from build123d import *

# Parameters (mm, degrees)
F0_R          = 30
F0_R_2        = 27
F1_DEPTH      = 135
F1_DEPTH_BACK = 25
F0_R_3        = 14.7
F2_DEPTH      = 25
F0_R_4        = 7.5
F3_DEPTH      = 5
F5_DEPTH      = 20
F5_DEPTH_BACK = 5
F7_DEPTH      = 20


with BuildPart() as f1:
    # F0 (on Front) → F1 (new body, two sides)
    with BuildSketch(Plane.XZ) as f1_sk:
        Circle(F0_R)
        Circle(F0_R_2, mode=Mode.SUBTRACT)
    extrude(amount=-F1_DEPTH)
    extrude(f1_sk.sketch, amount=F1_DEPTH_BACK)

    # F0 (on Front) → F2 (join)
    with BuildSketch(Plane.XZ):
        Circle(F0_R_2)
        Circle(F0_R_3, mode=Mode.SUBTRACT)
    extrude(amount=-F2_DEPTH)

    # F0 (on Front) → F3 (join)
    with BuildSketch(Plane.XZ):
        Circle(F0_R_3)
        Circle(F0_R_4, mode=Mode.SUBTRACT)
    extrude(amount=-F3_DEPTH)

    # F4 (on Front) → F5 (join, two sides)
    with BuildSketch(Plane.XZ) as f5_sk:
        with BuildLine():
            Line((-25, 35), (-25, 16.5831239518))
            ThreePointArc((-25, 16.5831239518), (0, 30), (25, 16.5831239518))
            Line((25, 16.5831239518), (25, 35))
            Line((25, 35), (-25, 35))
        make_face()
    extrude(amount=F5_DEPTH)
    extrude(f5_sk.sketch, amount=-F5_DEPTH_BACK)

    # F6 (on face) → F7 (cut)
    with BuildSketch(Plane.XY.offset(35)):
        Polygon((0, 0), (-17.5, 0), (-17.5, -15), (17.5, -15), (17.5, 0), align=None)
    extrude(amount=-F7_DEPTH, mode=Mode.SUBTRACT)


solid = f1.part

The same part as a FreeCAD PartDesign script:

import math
import FreeCAD as App
import Part
import Sketcher
from FreeCAD import Vector


def add_polygon(sketch, points):
    """Adds a closed chain of lines whose ends are joined by coincident constraints."""
    first, n = sketch.GeometryCount, len(points)
    for a, b in zip(points, points[1:] + points[:1]):
        sketch.addGeometry(Part.LineSegment(App.Vector(*a, 0), App.Vector(*b, 0)), False)
    for i in range(n):
        sketch.addConstraint(Sketcher.Constraint("Coincident", first + i, 2, first + (i + 1) % n, 1))

doc = App.newDocument("Part")
body = doc.addObject("PartDesign::Body", "Body")

sketch1 = body.newObject("Sketcher::SketchObject", "Sketch")
sketch1.AttachmentSupport = (doc.getObject("XZ_Plane"), [""])
sketch1.MapMode = "FlatFace"
sketch1.addGeometry([
    Part.Circle(Vector(0, 0, 0), Vector(0, 0, 1), 30),
    Part.Circle(Vector(0, 0, 0), Vector(0, 0, 1), 27),
], False)
sketch1.addConstraint([
    Sketcher.Constraint("Coincident", 0, 3, -1, 1),
    Sketcher.Constraint("Coincident", 1, 3, -1, 1),
    Sketcher.Constraint("Diameter", 0, 60.0),
    Sketcher.Constraint("Diameter", 1, 54.0),
])
pad1 = body.newObject("PartDesign::Pad", "Pad")
pad1.Profile = sketch1
pad1.Type = "TwoLengths"
pad1.Length = 135
pad1.Length2 = 25
pad1.Reversed = True

sketch2 = body.newObject("Sketcher::SketchObject", "Sketch001")
sketch2.AttachmentSupport = (doc.getObject("XZ_Plane"), [""])
sketch2.MapMode = "FlatFace"
sketch2.addGeometry([
    Part.Circle(Vector(0, 0, 0), Vector(0, 0, 1), 27),
    Part.Circle(Vector(0, 0, 0), Vector(0, 0, 1), 14.7),
], False)
sketch2.addConstraint([
    Sketcher.Constraint("Coincident", 0, 3, -1, 1),
    Sketcher.Constraint("Coincident", 1, 3, -1, 1),
    Sketcher.Constraint("Diameter", 0, 54.0),
    Sketcher.Constraint("Diameter", 1, 29.4),
])
pad2 = body.newObject("PartDesign::Pad", "Pad001")
pad2.Profile = sketch2
pad2.Length = 25
pad2.Reversed = True

sketch3 = body.newObject("Sketcher::SketchObject", "Sketch002")
sketch3.AttachmentSupport = (doc.getObject("XZ_Plane"), [""])
sketch3.MapMode = "FlatFace"
sketch3.addGeometry([
    Part.Circle(Vector(0, 0, 0), Vector(0, 0, 1), 14.7),
    Part.Circle(Vector(0, 0, 0), Vector(0, 0, 1), 7.5),
], False)
sketch3.addConstraint([
    Sketcher.Constraint("Coincident", 0, 3, -1, 1),
    Sketcher.Constraint("Coincident", 1, 3, -1, 1),
    Sketcher.Constraint("Diameter", 1, 15.0),
    Sketcher.Constraint("Diameter", 0, 29.4),
])
pad3 = body.newObject("PartDesign::Pad", "Pad002")
pad3.Profile = sketch3
pad3.Length = 5
pad3.Reversed = True

sketch4 = body.newObject("Sketcher::SketchObject", "Sketch003")
sketch4.AttachmentSupport = (doc.getObject("XZ_Plane"), [""])
sketch4.MapMode = "FlatFace"
sketch4.addGeometry([
    Part.LineSegment(Vector(-25, 35, 0), Vector(-25, 16.583124, 0)),
    Part.ArcOfCircle(Part.Circle(Vector(0, 0, 0), Vector(0, 0, 1), 30), math.radians(33.55731), math.radians(146.44269)),
    Part.LineSegment(Vector(25, 16.583124, 0), Vector(25, 35, 0)),
    Part.LineSegment(Vector(25, 35, 0), Vector(-25, 35, 0)),
], False)
sketch4.addConstraint([
    Sketcher.Constraint("Coincident", 0, 2, 1, 2),
    Sketcher.Constraint("Coincident", 1, 1, 2, 1),
    Sketcher.Constraint("Coincident", 2, 2, 3, 1),
    Sketcher.Constraint("Coincident", 3, 2, 0, 1),
    Sketcher.Constraint("Vertical", 0),
    Sketcher.Constraint("Vertical", 2),
    Sketcher.Constraint("Horizontal", 3),
    Sketcher.Constraint("Coincident", 1, 3, -1, 1),
    Sketcher.Constraint("Horizontal", 0, 2, 1, 1),
    Sketcher.Constraint("Radius", 1, 30.0),
    Sketcher.Constraint("DistanceX", 3, 2, 3, 1, 50.0),
    Sketcher.Constraint("DistanceY", -1, 1, 2, 2, 35.0),
])
pad4 = body.newObject("PartDesign::Pad", "Pad003")
pad4.Profile = sketch4
pad4.Type = "TwoLengths"
pad4.Length = 20
pad4.Length2 = 5

sketch5 = body.newObject("Sketcher::SketchObject", "Sketch004")
sketch5.AttachmentSupport = (doc.getObject("XY_Plane"), [""])
sketch5.MapMode = "FlatFace"
sketch5.AttachmentOffset = App.Placement(Vector(0, 0, 35), App.Rotation())
add_polygon(sketch5, [(-17.5, 0), (-17.5, -15), (17.5, -15), (17.5, 0)])
sketch5.addConstraint([
    Sketcher.Constraint("Vertical", 0),
    Sketcher.Constraint("Horizontal", 1),
    Sketcher.Constraint("Vertical", 2),
    Sketcher.Constraint("Horizontal", 3),
    Sketcher.Constraint("Symmetric", 2, 2, 3, 2, -1, 1),
    Sketcher.Constraint("DistanceX", 1, 1, 1, 2, 35.0),
    Sketcher.Constraint("DistanceY", 0, 2, 0, 1, 15.0),
])
pocket1 = body.newObject("PartDesign::Pocket", "Pocket")
pocket1.Profile = sketch5
pocket1.Length = 20

doc.recompute()
